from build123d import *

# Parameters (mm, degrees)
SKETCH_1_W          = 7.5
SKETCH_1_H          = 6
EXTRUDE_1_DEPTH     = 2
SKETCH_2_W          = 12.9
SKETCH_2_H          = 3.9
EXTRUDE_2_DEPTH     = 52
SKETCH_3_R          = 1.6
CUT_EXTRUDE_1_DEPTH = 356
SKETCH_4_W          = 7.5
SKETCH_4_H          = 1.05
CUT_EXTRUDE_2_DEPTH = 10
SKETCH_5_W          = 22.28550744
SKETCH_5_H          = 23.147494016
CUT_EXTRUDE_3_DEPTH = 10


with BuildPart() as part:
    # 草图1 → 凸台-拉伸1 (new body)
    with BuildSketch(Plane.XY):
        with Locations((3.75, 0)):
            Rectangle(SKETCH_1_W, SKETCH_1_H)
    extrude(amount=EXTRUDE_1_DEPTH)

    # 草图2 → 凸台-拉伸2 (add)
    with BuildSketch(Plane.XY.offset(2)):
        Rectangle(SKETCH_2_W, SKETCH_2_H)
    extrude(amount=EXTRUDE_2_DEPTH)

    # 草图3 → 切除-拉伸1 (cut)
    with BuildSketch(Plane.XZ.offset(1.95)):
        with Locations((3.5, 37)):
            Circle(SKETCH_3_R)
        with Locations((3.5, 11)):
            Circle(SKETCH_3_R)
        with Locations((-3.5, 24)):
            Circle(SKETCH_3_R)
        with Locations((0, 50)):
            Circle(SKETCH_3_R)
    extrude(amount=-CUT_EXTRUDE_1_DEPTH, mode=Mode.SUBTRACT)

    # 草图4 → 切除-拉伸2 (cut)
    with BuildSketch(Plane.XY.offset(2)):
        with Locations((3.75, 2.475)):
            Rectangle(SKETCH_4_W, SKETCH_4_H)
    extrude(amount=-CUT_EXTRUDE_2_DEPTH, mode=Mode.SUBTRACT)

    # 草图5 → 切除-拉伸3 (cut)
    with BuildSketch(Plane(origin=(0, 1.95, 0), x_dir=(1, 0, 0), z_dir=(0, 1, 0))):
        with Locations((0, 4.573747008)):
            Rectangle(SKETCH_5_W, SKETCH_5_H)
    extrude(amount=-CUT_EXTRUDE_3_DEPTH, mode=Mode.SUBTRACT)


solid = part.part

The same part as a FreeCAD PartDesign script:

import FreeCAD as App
import Part
import Sketcher
from FreeCAD import Vector


def add_polygon(sketch, points):
    """Adds a closed chain of lines whose ends are joined by coincident constraints."""
    first, n = sketch.GeometryCount, len(points)
    for a, b in zip(points, points[1:] + points[:1]):
        sketch.addGeometry(Part.LineSegment(App.Vector(*a, 0), App.Vector(*b, 0)), False)
    for i in range(n):
        sketch.addConstraint(Sketcher.Constraint("Coincident", first + i, 2, first + (i + 1) % n, 1))

doc = App.newDocument("Part")
body = doc.addObject("PartDesign::Body", "Body")

# Sketch on XY plane
sketch1 = doc.addObject("Sketcher::SketchObject", "Sketch")
body.addObject(sketch1)
sketch1.AttachmentSupport = (doc.XY_Plane, [""])
sketch1.MapMode = "FlatFace"
add_polygon(sketch1, [(0, 3), (0, -3), (8, -3), (8, 3)])  # lines 0-3
sketch1.addConstraint([
    Sketcher.Constraint("Vertical", 0),
    Sketcher.Constraint("Horizontal", 1),
    Sketcher.Constraint("Vertical", 2),
    Sketcher.Constraint("Horizontal", 3),
    Sketcher.Constraint("Symmetric", 0, 2, 3, 2, -1, 1),
    Sketcher.Constraint("DistanceY", 0, 2, 0, 1, 6.0),
    Sketcher.Constraint("DistanceX", 1, 1, 1, 2, 7.5),
])
pad1 = doc.addObject("PartDesign::Pad", "Pad")
body.addObject(pad1)
pad1.Profile = sketch1
pad1.Length = 2

# Sketch on XY plane
sketch2 = doc.addObject("Sketcher::SketchObject", "Sketch001")
body.addObject(sketch2)
sketch2.AttachmentSupport = (doc.XY_Plane, [""])
sketch2.MapMode = "FlatFace"
sketch2.AttachmentOffset = App.Placement(Vector(0, 0, 2), App.Rotation())
add_polygon(sketch2, [(-6.5, 1.9), (-6.5, -1.9), (6.5, -1.9), (6.5, 1.9)])  # lines 0-3
sketch2.addConstraint([
    Sketcher.Constraint("Vertical", 0),
    Sketcher.Constraint("Horizontal", 1),
    Sketcher.Constraint("Vertical", 2),
    Sketcher.Constraint("Horizontal", 3),
    Sketcher.Constraint("Symmetric", 0, 2, 2, 2, -1, 1),
    Sketcher.Constraint("DistanceX", 1, 1, 1, 2, 12.9),
    Sketcher.Constraint("DistanceY", 0, 2, 0, 1, 3.9),
])
pad2 = doc.addObject("PartDesign::Pad", "Pad001")
body.addObject(pad2)
pad2.Profile = sketch2
pad2.Length = 52

# Sketch on XZ plane
sketch3 = doc.addObject("Sketcher::SketchObject", "Sketch002")
body.addObject(sketch3)
sketch3.AttachmentSupport = (doc.XZ_Plane, [""])
sketch3.MapMode = "FlatFace"
sketch3.AttachmentOffset = App.Placement(Vector(0, 0, 1.95), App.Rotation())
sketch3.addGeometry([
    Part.Circle(Vector(3.5, 37, 0), Vector(0, 0, 1), 1.6),
    Part.Circle(Vector(3.5, 11, 0), Vector(0, 0, 1), 1.6),
    Part.Circle(Vector(-3.5, 24, 0), Vector(0, 0, 1), 1.6),
    Part.Circle(Vector(0, 50, 0), Vector(0, 0, 1), 1.6),
], False)
sketch3.addConstraint([
    Sketcher.Constraint("Equal", 0, 1),
    Sketcher.Constraint("Equal", 1, 2),
    Sketcher.Constraint("Equal", 2, 3),
    Sketcher.Constraint("PointOnObject", 3, 3, -2),
    Sketcher.Constraint("Vertical", 0, 3, 1, 3),
    Sketcher.Constraint("Diameter", 0, 3.2),
    Sketcher.Constraint("DistanceY", -1, 1, 0, 3, 37.0),
    Sketcher.Constraint("DistanceY", -1, 1, 1, 3, 11.0),
    Sketcher.Constraint("DistanceY", -1, 1, 2, 3, 24.0),
    Sketcher.Constraint("DistanceY", -1, 1, 3, 3, 50.0),
    Sketcher.Constraint("DistanceX", 2, 3, 0, 3, 7.0),
    Sketcher.Constraint("DistanceX", -1, 1, 0, 3, 3.5),
])
pocket1 = doc.addObject("PartDesign::Pocket", "Pocket")
body.addObject(pocket1)
pocket1.Profile = sketch3
pocket1.Length = 356

# Sketch on XY plane
sketch4 = doc.addObject("Sketcher::SketchObject", "Sketch003")
body.addObject(sketch4)
sketch4.AttachmentSupport = (doc.XY_Plane, [""])
sketch4.MapMode = "FlatFace"
sketch4.AttachmentOffset = App.Placement(Vector(0, 0, 2), App.Rotation())
add_polygon(sketch4, [(0, 3), (0, 1.9), (7.5, 1.9), (7.5, 3)])  # lines 0-3
sketch4.addConstraint([
    Sketcher.Constraint("Vertical", 0),
    Sketcher.Constraint("Horizontal", 1),
    Sketcher.Constraint("Vertical", 2),
    Sketcher.Constraint("Horizontal", 3),
    Sketcher.Constraint("PointOnObject", 0, 2, -2),
    Sketcher.Constraint("DistanceX", 1, 1, 1, 2, 7.5),
    Sketcher.Constraint("DistanceY", -1, 1, 2, 2, 3.0),
    Sketcher.Constraint("DistanceY", 0, 2, 0, 1, 1.05),
])
pocket2 = doc.addObject("PartDesign::Pocket", "Pocket001")
body.addObject(pocket2)
pocket2.Profile = sketch4
pocket2.Length = 10

# Sketch on XZ plane
sketch5 = doc.addObject("Sketcher::SketchObject", "Sketch004")
body.addObject(sketch5)
sketch5.AttachmentSupport = (doc.XZ_Plane, [""])
sketch5.MapMode = "FlatFace"
sketch5.AttachmentOffset = App.Placement(Vector(0, 0, -1.95), App.Rotation())
add_polygon(sketch5, [(-11, -16), (-11, 7), (11, 7), (11, -16)])  # lines 0-3
sketch5.addConstraint([
    Sketcher.Constraint("Vertical", 0),
    Sketcher.Constraint("Horizontal", 1),
    Sketcher.Constraint("Vertical", 2),
    Sketcher.Constraint("Horizontal", 3),
    Sketcher.Constraint("DistanceY", -1, 1, 0, 2, 7.0),
    Sketcher.Constraint("DistanceX", 1, 1, 1, 2, 22.285507),
    Sketcher.Constraint("DistanceY", 0, 1, 0, 2, 23.147494),
    Sketcher.Constraint("DistanceX", 0, 2, -1, 1, 11.142754),
])
pocket3 = doc.addObject("PartDesign::Pocket", "Pocket002")
body.addObject(pocket3)
pocket3.Profile = sketch5
pocket3.Length = 10
pocket3.Reversed = True

doc.recompute()
